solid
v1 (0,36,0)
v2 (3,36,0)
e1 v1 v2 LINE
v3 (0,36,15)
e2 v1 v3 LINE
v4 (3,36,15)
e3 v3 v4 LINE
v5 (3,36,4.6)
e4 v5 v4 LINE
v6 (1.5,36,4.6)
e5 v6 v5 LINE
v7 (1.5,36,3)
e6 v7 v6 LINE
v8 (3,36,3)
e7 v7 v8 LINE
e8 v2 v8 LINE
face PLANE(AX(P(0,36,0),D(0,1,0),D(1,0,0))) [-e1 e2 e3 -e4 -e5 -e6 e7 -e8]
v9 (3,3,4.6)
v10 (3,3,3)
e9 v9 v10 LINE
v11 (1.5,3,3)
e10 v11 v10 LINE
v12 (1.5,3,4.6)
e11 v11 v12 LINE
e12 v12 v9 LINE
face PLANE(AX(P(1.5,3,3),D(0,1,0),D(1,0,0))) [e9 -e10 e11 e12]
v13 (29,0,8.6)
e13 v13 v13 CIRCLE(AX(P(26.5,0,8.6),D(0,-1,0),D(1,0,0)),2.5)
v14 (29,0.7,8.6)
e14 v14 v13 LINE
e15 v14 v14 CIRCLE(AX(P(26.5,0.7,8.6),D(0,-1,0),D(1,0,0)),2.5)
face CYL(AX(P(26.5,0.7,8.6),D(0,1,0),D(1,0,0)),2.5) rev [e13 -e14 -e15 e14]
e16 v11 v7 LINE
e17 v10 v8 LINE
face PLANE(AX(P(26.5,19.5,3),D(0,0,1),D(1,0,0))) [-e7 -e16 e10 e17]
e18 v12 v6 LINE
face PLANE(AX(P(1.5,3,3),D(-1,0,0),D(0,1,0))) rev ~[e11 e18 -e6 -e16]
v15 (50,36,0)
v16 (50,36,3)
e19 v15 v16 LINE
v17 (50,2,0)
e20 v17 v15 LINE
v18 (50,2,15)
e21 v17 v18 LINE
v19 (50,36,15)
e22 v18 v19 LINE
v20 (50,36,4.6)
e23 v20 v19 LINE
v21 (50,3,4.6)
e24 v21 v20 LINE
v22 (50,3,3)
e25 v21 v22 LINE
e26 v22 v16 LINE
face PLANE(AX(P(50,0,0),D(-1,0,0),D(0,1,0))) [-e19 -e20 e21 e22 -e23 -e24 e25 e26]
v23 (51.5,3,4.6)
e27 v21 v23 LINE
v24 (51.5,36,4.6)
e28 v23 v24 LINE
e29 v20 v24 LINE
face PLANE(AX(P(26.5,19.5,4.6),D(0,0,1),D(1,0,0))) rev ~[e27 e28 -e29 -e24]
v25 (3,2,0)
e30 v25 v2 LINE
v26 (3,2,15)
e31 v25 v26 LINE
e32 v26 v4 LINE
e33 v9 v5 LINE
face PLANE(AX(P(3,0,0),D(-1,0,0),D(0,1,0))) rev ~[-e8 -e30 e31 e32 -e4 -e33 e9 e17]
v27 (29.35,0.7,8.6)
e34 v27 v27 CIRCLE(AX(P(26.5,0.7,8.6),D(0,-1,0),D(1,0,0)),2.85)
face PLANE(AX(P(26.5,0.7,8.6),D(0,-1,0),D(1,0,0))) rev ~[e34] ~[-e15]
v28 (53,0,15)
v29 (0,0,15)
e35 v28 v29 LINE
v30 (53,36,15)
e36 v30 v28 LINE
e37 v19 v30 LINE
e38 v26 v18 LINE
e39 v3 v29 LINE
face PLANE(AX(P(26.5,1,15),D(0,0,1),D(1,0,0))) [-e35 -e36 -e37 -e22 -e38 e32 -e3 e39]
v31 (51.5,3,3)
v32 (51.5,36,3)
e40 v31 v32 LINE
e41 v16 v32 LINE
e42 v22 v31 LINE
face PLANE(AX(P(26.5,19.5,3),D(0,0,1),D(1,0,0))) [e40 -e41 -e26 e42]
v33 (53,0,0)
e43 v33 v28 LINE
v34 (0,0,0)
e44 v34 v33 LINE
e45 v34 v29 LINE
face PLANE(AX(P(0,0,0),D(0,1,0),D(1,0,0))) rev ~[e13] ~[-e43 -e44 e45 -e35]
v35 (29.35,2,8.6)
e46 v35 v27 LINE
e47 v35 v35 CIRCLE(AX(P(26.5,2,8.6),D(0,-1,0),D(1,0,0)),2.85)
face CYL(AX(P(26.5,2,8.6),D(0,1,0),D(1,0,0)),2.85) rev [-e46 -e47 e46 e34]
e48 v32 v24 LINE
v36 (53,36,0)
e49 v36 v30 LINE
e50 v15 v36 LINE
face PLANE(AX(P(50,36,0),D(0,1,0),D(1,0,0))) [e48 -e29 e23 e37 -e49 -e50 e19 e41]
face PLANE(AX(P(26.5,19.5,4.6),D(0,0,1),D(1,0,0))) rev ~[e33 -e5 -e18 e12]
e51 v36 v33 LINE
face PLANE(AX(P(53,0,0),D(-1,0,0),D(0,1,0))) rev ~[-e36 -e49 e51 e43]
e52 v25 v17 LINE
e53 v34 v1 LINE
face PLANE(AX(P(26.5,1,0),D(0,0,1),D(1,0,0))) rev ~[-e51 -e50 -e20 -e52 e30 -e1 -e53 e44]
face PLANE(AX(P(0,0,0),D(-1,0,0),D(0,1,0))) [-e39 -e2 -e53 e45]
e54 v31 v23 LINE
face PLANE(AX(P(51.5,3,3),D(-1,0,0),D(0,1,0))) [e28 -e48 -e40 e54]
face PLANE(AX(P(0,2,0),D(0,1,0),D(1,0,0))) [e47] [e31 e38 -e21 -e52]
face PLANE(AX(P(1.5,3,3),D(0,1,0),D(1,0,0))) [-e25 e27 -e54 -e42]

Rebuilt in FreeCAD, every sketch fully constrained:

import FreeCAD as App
import Part
import Sketcher
from FreeCAD import Vector
Q = App.Units.Quantity

doc = App.newDocument("Part")
body = doc.addObject("PartDesign::Body", "Body")

sketch1 = body.newObject("Sketcher::SketchObject", "Sketch")
sketch1.AttachmentSupport = (doc.getObject("XY_Plane"), [""])
sketch1.MapMode = "FlatFace"
sketch1.AttachmentOffset = App.Placement(Vector(0, 0, 3), App.Rotation())
sketch1.addGeometry(Part.LineSegment(Vector(2, 36, 0), Vector(2, 3, 0)), False)
sketch1.addGeometry(Part.LineSegment(Vector(2, 3, 0), Vector(52, 3, 0)), False)
sketch1.addGeometry(Part.LineSegment(Vector(52, 3, 0), Vector(52, 36, 0)), False)
sketch1.addGeometry(Part.LineSegment(Vector(52, 36, 0), Vector(2, 36, 0)), False)
sketch1.addConstraint(Sketcher.Constraint("Coincident", 0, 2, 1, 1))
sketch1.addConstraint(Sketcher.Constraint("Coincident", 1, 2, 2, 1))
sketch1.addConstraint(Sketcher.Constraint("Coincident", 2, 2, 3, 1))
sketch1.addConstraint(Sketcher.Constraint("Coincident", 3, 2, 0, 1))
sketch1.addConstraint(Sketcher.Constraint("Vertical", 0))
sketch1.addConstraint(Sketcher.Constraint("Horizontal", 1))
sketch1.addConstraint(Sketcher.Constraint("Vertical", 2))
sketch1.addConstraint(Sketcher.Constraint("Horizontal", 3))
sketch1.addConstraint(Sketcher.Constraint("DistanceX", 1, 1, 1, 2, Q("50 mm")))
sketch1.addConstraint(Sketcher.Constraint("DistanceY", 0, 2, 0, 1, Q("33 mm")))
sketch1.addConstraint(Sketcher.Constraint("DistanceY", -1, 1, 0, 2, Q("3 mm")))
sketch1.addConstraint(Sketcher.Constraint("DistanceX", -1, 1, 0, 2, Q("1.5 mm")))
pad1 = body.newObject("PartDesign::Pad", "Pad")
pad1.Profile = sketch1
pad1.Length = 1.6
body2 = doc.addObject("PartDesign::Body", "Body001")

sketch2 = body2.newObject("Sketcher::SketchObject", "Sketch001")
sketch2.AttachmentSupport = (doc.getObject("XY_Plane001"), [""])
sketch2.MapMode = "FlatFace"
sketch2.addGeometry(Part.LineSegment(Vector(50, 36, 0), Vector(50, 0, 0)), False)
sketch2.addGeometry(Part.LineSegment(Vector(50, 0, 0), Vector(53, 0, 0)), False)
sketch2.addGeometry(Part.LineSegment(Vector(53, 0, 0), Vector(53, 36, 0)), False)
sketch2.addGeometry(Part.LineSegment(Vector(53, 36, 0), Vector(50, 36, 0)), False)
sketch2.addConstraint(Sketcher.Constraint("Coincident", 0, 2, 1, 1))
sketch2.addConstraint(Sketcher.Constraint("Coincident", 1, 2, 2, 1))
sketch2.addConstraint(Sketcher.Constraint("Coincident", 2, 2, 3, 1))
sketch2.addConstraint(Sketcher.Constraint("Coincident", 3, 2, 0, 1))
sketch2.addConstraint(Sketcher.Constraint("Vertical", 0))
sketch2.addConstraint(Sketcher.Constraint("Horizontal", 1))
sketch2.addConstraint(Sketcher.Constraint("Vertical", 2))
sketch2.addConstraint(Sketcher.Constraint("Horizontal", 3))
sketch2.addConstraint(Sketcher.Constraint("PointOnObject", 0, 2, -1))
sketch2.addConstraint(Sketcher.Constraint("DistanceX", 1, 1, 1, 2, Q("3 mm")))
sketch2.addConstraint(Sketcher.Constraint("DistanceY", 0, 2, 0, 1, Q("36 mm")))
sketch2.addConstraint(Sketcher.Constraint("DistanceX", -1, 1, 0, 2, Q("50 mm")))
pad2 = body2.newObject("PartDesign::Pad", "Pad001")
pad2.Profile = sketch2
pad2.Length = 15
body3 = doc.addObject("PartDesign::Body", "Body002")

sketch3 = body3.newObject("Sketcher::SketchObject", "Sketch002")
sketch3.AttachmentSupport = (doc.getObject("XY_Plane002"), [""])
sketch3.MapMode = "FlatFace"
sketch3.addGeometry(Part.LineSegment(Vector(0, 36, 0), Vector(0, 0, 0)), False)
sketch3.addGeometry(Part.LineSegment(Vector(0, 0, 0), Vector(3, 0, 0)), False)
sketch3.addGeometry(Part.LineSegment(Vector(3, 0, 0), Vector(3, 36, 0)), False)
sketch3.addGeometry(Part.LineSegment(Vector(3, 36, 0), Vector(0, 36, 0)), False)
sketch3.addConstraint(Sketcher.Constraint("Coincident", 0, 2, 1, 1))
sketch3.addConstraint(Sketcher.Constraint("Coincident", 1, 2, 2, 1))
sketch3.addConstraint(Sketcher.Constraint("Coincident", 2, 2, 3, 1))
sketch3.addConstraint(Sketcher.Constraint("Coincident", 3, 2, 0, 1))
sketch3.addConstraint(Sketcher.Constraint("Vertical", 0))
sketch3.addConstraint(Sketcher.Constraint("Horizontal", 1))
sketch3.addConstraint(Sketcher.Constraint("Vertical", 2))
sketch3.addConstraint(Sketcher.Constraint("Horizontal", 3))
sketch3.addConstraint(Sketcher.Constraint("Coincident", 0, 2, -1, 1))
sketch3.addConstraint(Sketcher.Constraint("DistanceX", 1, 1, 1, 2, Q("3 mm")))
sketch3.addConstraint(Sketcher.Constraint("DistanceY", 0, 2, 0, 1, Q("36 mm")))
pad3 = body3.newObject("PartDesign::Pad", "Pad002")
pad3.Profile = sketch3
pad3.Length = 15
body4 = doc.addObject("PartDesign::Body", "Body003")

sketch4 = body4.newObject("Sketcher::SketchObject", "Sketch003")
sketch4.AttachmentSupport = (doc.getObject("XY_Plane003"), [""])
sketch4.MapMode = "FlatFace"
sketch4.addGeometry(Part.Circle(Vector(0, 0, 0), Vector(0, 0, 1), 2.9), False)
sketch4.addConstraint(Sketcher.Constraint("Coincident", 0, 3, -1, 1))
sketch4.addConstraint(Sketcher.Constraint("Diameter", 0, Q("5.7 mm")))
pad4 = body4.newObject("PartDesign::Pad", "Pad003")
pad4.Profile = sketch4
pad4.Length = 1.3
body5 = doc.addObject("PartDesign::Body", "Body004")
doc.recompute()

body4.Placement = App.Placement(Vector(0, 0, 0), App.Rotation(Vector(1, 0, 0), 90))
boolean = body5.newObject("PartDesign::Boolean", "Boolean")
boolean.Type = "Fuse"
boolean.addObjects([body4])
body6 = doc.addObject("PartDesign::Body", "Body005")
doc.recompute()

body5.Placement = App.Placement(Vector(26.5, 2, 8.6), App.Rotation(Vector(0, 0, 1), 0))
boolean2 = body6.newObject("PartDesign::Boolean", "Boolean001")
boolean2.Type = "Fuse"
boolean2.addObjects([body5])
body7 = doc.addObject("PartDesign::Body", "Body006")

sketch5 = body7.newObject("Sketcher::SketchObject", "Sketch004")
sketch5.AttachmentSupport = (doc.getObject("XY_Plane006"), [""])
sketch5.MapMode = "FlatFace"
sketch5.addGeometry(Part.Circle(Vector(0, 0, 0), Vector(0, 0, 1), 2.5), False)
sketch5.addConstraint(Sketcher.Constraint("Coincident", 0, 3, -1, 1))
sketch5.addConstraint(Sketcher.Constraint("Diameter", 0, Q("5 mm")))
pad5 = body7.newObject("PartDesign::Pad", "Pad004")
pad5.Profile = sketch5
pad5.Length = 0.7
body8 = doc.addObject("PartDesign::Body", "Body007")
doc.recompute()

body7.Placement = App.Placement(Vector(0, 0, 0), App.Rotation(Vector(1, 0, 0), 90))
boolean3 = body8.newObject("PartDesign::Boolean", "Boolean002")
boolean3.Type = "Fuse"
boolean3.addObjects([body7])
body9 = doc.addObject("PartDesign::Body", "Body008")
doc.recompute()

body8.Placement = App.Placement(Vector(26.5, 0.7, 8.6), App.Rotation(Vector(0, 0, 1), 0))
boolean4 = body9.newObject("PartDesign::Boolean", "Boolean003")
boolean4.Type = "Fuse"
boolean4.addObjects([body8])
doc.recompute()

boolean5 = body9.newObject("PartDesign::Boolean", "Boolean004")
boolean5.Type = "Fuse"
boolean5.addObjects([body6])
body10 = doc.addObject("PartDesign::Body", "Body009")

sketch6 = body10.newObject("Sketcher::SketchObject", "Sketch005")
sketch6.AttachmentSupport = (doc.getObject("XY_Plane009"), [""])
sketch6.MapMode = "FlatFace"
sketch6.addGeometry(Part.LineSegment(Vector(0, 2, 0), Vector(0, 0, 0)), False)
sketch6.addGeometry(Part.LineSegment(Vector(0, 0, 0), Vector(53, 0, 0)), False)
sketch6.addGeometry(Part.LineSegment(Vector(53, 0, 0), Vector(53, 2, 0)), False)
sketch6.addGeometry(Part.LineSegment(Vector(53, 2, 0), Vector(0, 2, 0)), False)
sketch6.addConstraint(Sketcher.Constraint("Coincident", 0, 2, 1, 1))
sketch6.addConstraint(Sketcher.Constraint("Coincident", 1, 2, 2, 1))
sketch6.addConstraint(Sketcher.Constraint("Coincident", 2, 2, 3, 1))
sketch6.addConstraint(Sketcher.Constraint("Coincident", 3, 2, 0, 1))
sketch6.addConstraint(Sketcher.Constraint("Vertical", 0))
sketch6.addConstraint(Sketcher.Constraint("Horizontal", 1))
sketch6.addConstraint(Sketcher.Constraint("Vertical", 2))
sketch6.addConstraint(Sketcher.Constraint("Horizontal", 3))
sketch6.addConstraint(Sketcher.Constraint("Coincident", 0, 2, -1, 1))
sketch6.addConstraint(Sketcher.Constraint("DistanceX", 1, 1, 1, 2, Q("53 mm")))
sketch6.addConstraint(Sketcher.Constraint("DistanceY", 0, 2, 0, 1, Q("2 mm")))
pad6 = body10.newObject("PartDesign::Pad", "Pad005")
pad6.Profile = sketch6
pad6.Length = 15
doc.recompute()

boolean6 = body10.newObject("PartDesign::Boolean", "Boolean005")
boolean6.Type = "Cut"
boolean6.addObjects([body9])
doc.recompute()

boolean7 = body10.newObject("PartDesign::Boolean", "Boolean006")
boolean7.Type = "Fuse"
boolean7.addObjects([body2])
doc.recompute()

boolean8 = body10.newObject("PartDesign::Boolean", "Boolean007")
boolean8.Type = "Fuse"
boolean8.addObjects([body3])
doc.recompute()

boolean9 = body10.newObject("PartDesign::Boolean", "Boolean008")
boolean9.Type = "Cut"
boolean9.addObjects([body])

doc.recompute()
